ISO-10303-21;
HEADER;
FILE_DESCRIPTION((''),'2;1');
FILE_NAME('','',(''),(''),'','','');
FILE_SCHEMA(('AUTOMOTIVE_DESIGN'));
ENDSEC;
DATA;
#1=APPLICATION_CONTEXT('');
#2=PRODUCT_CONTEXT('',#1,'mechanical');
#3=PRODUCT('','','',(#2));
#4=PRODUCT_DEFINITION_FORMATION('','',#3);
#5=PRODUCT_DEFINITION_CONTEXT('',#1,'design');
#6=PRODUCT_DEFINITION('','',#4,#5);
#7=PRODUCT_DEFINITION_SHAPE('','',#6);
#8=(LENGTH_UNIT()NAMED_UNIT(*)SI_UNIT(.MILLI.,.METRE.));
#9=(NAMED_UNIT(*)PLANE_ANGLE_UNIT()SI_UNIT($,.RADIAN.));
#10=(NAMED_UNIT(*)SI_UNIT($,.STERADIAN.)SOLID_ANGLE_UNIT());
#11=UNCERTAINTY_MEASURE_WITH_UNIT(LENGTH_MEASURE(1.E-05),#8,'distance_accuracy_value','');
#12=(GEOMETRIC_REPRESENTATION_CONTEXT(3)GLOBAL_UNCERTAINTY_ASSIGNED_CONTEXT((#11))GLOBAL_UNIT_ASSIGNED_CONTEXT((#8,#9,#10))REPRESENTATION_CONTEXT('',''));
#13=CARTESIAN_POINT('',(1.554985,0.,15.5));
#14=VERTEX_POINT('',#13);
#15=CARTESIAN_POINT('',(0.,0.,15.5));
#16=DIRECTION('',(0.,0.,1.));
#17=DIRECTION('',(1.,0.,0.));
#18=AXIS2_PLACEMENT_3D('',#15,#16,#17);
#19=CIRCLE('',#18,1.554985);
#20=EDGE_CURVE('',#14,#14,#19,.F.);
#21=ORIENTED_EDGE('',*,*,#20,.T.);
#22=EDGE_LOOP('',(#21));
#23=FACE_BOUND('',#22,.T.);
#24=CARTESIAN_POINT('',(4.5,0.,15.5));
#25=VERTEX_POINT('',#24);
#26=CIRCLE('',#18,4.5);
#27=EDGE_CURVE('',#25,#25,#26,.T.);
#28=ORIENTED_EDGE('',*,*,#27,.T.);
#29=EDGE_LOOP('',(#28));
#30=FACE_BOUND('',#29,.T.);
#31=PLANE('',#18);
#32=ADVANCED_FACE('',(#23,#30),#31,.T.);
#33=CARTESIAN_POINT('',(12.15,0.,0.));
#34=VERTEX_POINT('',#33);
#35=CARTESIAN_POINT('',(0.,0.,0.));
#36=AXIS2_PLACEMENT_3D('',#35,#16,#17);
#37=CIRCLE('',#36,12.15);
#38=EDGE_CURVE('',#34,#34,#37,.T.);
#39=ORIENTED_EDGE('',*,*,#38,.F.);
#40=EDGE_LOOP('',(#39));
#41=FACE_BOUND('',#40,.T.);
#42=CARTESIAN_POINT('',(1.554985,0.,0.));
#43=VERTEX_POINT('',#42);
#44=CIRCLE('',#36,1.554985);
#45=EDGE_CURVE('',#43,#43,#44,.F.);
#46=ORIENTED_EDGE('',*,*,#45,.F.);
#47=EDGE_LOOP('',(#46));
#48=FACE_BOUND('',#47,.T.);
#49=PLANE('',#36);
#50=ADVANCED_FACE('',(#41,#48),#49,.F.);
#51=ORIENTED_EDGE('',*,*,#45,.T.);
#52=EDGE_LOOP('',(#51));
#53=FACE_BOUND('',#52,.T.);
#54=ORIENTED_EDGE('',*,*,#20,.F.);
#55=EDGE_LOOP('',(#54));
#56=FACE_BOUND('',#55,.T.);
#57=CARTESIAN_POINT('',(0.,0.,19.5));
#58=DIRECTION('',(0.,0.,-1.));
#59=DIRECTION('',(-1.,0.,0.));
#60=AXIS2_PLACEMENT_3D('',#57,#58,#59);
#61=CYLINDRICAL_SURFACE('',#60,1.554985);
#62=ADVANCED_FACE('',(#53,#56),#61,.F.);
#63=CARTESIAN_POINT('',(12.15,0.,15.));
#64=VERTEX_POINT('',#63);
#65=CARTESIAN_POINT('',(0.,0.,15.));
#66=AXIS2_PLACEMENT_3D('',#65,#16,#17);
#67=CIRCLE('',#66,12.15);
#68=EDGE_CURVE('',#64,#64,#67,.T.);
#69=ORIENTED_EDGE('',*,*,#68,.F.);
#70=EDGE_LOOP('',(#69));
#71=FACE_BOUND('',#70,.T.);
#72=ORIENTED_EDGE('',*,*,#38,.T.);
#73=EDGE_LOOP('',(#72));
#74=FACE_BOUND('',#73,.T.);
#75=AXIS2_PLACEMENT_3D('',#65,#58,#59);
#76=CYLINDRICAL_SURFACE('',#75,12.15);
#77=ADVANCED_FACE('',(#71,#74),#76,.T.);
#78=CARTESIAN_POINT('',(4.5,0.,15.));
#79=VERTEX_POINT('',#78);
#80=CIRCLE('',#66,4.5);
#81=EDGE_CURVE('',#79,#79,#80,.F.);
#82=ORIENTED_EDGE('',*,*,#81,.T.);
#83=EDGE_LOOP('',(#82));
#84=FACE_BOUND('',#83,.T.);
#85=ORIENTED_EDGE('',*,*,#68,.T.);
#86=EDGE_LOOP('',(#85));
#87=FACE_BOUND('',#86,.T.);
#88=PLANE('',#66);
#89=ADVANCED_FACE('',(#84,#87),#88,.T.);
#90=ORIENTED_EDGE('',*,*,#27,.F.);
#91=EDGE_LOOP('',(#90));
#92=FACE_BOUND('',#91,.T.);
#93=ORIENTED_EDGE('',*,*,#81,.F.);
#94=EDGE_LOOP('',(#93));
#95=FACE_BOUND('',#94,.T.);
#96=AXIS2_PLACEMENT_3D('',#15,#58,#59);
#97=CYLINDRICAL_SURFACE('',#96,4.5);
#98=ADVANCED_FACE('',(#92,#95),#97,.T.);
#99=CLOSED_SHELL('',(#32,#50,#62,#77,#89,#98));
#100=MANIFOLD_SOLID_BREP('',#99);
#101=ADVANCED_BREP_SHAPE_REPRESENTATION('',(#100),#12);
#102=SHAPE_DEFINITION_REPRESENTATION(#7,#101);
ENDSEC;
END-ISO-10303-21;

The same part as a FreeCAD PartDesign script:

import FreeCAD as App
import Part
import Sketcher

V = App.Vector
Q = App.Units.Quantity

doc = App.newDocument("Part")
params = doc.addObject("Spreadsheet::Sheet", "Params")
for row, (alias, value) in enumerate([
    ("sketch1_diameter", "24.3 mm"),
    ("pad1_length", "15 mm"),
    ("sketch2_diameter", "9 mm"),
    ("pad2_length", "15.5 mm"),
], start=1):
    params.set(f"A{row}", alias)
    params.set(f"B{row}", "=" + value)
    params.setAlias(f"B{row}", alias)

body = doc.addObject("PartDesign::Body", "Body")

sketch1 = doc.addObject("Sketcher::SketchObject", "Sketch")
body.addObject(sketch1)
sketch1.AttachmentSupport = (doc.XY_Plane, [""])
sketch1.MapMode = "FlatFace"
sketch1.addGeometry(Part.Circle(V(0, 0, 0), V(0, 0, 1), 12.15), False)
sketch1.addConstraint([
    Sketcher.Constraint("Coincident", 0, 3, -1, 1),
    Sketcher.Constraint("Diameter", 0, Q("24.3 mm")),
])
sketch1.setExpression("Constraints[1]", "Params.sketch1_diameter")
pad1 = doc.addObject("PartDesign::Pad", "Pad")
body.addObject(pad1)
pad1.Profile = sketch1
pad1.setExpression("Length", "Params.pad1_length")

sketch2 = doc.addObject("Sketcher::SketchObject", "Sketch001")
body.addObject(sketch2)
sketch2.AttachmentSupport = (doc.XY_Plane, [""])
sketch2.MapMode = "FlatFace"
sketch2.addGeometry(Part.Circle(V(0, 0, 0), V(0, 0, 1), 4.5), False)
sketch2.addConstraint([
    Sketcher.Constraint("Coincident", 0, 3, -1, 1),
    Sketcher.Constraint("Diameter", 0, Q("9 mm")),
])
sketch2.setExpression("Constraints[1]", "Params.sketch2_diameter")
pad2 = doc.addObject("PartDesign::Pad", "Pad001")
body.addObject(pad2)
pad2.Profile = sketch2
pad2.setExpression("Length", "Params.pad2_length")

sketch3 = doc.addObject("Sketcher::SketchObject", "Sketch002")
body.addObject(sketch3)
sketch3.AttachmentSupport = (doc.XY_Plane, [""])
sketch3.MapMode = "FlatFace"
sketch3.addGeometry(Part.Circle(V(0, 0, 0), V(0, 0, 1), 1.554985), False)
sketch3.addConstraint([
    Sketcher.Constraint("Coincident", 0, 3, -1, 1),
    Sketcher.Constraint("Diameter", 0, Q("3.109969 mm")),
])
pocket1 = doc.addObject("PartDesign::Pocket", "Pocket")
body.addObject(pocket1)
pocket1.Profile = sketch3
pocket1.Type = "ThroughAll"
pocket1.Midplane = True

doc.recompute()
